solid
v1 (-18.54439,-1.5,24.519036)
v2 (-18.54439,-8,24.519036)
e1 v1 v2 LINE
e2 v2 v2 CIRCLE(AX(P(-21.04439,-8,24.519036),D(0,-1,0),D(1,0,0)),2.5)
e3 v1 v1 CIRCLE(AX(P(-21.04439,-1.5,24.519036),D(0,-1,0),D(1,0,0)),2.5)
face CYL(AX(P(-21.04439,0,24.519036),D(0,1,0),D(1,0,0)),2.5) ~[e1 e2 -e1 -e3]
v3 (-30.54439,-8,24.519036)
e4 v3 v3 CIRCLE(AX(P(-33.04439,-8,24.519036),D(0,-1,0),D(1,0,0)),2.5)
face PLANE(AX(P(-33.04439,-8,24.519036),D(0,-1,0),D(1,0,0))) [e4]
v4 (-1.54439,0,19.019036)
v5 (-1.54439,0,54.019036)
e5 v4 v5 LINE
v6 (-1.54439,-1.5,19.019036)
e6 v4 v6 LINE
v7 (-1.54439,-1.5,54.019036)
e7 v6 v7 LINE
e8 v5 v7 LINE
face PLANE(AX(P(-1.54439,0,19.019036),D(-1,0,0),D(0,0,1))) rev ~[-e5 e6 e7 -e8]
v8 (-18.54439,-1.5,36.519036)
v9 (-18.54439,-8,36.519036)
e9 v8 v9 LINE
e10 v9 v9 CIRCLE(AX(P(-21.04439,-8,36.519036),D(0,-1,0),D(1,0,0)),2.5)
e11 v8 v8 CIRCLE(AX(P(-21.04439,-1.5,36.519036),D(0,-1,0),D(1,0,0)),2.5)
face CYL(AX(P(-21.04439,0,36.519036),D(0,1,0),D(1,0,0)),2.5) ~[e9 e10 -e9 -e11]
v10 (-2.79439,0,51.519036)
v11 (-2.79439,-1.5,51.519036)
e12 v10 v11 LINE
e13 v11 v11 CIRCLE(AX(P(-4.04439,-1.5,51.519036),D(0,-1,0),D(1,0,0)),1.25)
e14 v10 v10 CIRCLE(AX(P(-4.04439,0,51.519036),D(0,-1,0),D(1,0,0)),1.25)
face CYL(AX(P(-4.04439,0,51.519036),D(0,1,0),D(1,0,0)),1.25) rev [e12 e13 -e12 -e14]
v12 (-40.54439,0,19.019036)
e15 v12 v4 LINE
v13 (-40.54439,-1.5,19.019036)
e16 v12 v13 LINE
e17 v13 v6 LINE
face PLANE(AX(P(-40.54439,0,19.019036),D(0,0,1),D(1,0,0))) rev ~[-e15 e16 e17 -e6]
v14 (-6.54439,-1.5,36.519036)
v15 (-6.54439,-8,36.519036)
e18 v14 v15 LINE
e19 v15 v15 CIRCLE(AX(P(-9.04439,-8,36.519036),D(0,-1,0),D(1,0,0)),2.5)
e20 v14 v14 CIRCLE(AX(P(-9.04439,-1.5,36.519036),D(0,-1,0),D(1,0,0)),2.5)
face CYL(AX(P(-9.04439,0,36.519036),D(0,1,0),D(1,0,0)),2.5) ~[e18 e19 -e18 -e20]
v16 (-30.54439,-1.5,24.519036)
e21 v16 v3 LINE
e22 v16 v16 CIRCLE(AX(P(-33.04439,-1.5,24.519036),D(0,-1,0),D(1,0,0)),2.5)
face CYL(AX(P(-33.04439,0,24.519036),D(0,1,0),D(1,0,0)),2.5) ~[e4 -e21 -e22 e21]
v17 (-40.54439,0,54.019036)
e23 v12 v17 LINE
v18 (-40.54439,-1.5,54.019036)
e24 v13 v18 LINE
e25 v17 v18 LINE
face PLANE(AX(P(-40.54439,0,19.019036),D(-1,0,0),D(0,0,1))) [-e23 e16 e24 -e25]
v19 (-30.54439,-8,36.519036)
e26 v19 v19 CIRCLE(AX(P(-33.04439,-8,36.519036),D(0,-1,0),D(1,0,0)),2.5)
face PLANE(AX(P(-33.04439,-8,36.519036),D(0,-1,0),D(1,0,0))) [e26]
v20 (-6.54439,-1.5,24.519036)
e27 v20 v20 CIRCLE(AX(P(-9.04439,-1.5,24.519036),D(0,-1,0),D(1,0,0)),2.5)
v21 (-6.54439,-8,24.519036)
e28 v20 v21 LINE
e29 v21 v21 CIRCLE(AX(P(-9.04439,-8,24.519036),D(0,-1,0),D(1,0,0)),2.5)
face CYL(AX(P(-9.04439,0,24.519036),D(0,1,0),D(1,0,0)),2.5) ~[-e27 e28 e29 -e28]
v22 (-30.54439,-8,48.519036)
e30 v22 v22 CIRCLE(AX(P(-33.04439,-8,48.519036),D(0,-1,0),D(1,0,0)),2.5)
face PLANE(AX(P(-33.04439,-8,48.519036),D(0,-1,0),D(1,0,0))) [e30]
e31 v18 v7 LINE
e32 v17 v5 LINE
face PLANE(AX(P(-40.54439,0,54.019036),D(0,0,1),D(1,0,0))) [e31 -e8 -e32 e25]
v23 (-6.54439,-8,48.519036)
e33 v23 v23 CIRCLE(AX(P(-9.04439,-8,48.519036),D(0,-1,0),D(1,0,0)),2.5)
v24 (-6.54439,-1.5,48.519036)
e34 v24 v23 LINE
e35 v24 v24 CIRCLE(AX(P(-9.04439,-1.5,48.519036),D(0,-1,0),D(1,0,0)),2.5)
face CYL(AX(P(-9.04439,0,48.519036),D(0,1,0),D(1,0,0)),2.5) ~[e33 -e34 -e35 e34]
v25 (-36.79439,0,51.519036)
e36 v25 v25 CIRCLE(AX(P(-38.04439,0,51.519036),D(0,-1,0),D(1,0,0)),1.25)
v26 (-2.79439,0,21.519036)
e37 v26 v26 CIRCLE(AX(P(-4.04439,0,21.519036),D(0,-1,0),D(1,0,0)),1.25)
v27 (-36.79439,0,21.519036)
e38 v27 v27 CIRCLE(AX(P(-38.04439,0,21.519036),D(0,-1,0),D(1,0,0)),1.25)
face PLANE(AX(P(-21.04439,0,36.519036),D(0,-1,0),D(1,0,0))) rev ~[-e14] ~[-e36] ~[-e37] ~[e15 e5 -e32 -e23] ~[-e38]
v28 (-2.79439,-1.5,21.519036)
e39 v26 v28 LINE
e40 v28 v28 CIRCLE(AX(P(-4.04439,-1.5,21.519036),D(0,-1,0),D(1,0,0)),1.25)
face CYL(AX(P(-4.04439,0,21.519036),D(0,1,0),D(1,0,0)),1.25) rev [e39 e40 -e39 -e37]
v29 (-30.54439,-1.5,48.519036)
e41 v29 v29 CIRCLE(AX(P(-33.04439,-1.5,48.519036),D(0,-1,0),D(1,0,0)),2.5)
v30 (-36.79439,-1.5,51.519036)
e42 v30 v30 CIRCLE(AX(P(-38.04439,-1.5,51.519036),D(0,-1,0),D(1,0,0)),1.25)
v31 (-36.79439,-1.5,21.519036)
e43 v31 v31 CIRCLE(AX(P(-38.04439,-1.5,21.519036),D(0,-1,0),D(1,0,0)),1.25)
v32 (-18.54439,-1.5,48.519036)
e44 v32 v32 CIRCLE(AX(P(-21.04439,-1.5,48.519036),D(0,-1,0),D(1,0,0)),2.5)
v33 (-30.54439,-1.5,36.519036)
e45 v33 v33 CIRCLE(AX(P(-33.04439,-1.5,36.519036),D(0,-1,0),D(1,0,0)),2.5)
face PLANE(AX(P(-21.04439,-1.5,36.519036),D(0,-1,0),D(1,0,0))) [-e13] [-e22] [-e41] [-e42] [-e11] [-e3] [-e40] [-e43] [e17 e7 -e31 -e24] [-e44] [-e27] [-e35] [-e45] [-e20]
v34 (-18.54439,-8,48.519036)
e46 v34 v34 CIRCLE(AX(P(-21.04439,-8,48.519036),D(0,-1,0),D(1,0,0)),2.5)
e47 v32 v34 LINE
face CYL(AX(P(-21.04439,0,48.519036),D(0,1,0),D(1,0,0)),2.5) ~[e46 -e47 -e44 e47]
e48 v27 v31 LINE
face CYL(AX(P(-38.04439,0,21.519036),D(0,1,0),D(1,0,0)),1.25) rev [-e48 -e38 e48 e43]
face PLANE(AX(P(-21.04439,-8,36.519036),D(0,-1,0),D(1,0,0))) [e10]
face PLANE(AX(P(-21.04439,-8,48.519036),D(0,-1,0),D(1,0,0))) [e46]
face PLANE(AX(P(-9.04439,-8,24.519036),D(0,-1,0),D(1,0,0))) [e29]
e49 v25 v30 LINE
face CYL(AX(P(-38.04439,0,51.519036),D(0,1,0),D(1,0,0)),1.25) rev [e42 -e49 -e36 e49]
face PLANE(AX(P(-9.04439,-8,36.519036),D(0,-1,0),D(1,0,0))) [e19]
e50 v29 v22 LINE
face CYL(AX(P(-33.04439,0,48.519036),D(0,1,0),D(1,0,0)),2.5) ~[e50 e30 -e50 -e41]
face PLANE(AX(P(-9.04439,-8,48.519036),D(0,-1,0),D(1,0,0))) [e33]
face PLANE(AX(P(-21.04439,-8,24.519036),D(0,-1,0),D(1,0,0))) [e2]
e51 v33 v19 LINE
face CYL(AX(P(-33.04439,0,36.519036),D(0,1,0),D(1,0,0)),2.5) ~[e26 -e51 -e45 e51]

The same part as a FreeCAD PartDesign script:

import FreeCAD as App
import Part
import Sketcher

doc = App.newDocument("Part")
body = doc.addObject("PartDesign::Body", "Body")

sketch1 = body.newObject("Sketcher::SketchObject", "Sketch")
sketch1.AttachmentSupport = (doc.getObject("XZ_Plane"), [""])
sketch1.MapMode = "FlatFace"
sketch1.addGeometry(Part.LineSegment(App.Vector(-40.54439, 54.019036, 0), App.Vector(-40.54439, 19.019036, 0)), False)
sketch1.addGeometry(Part.LineSegment(App.Vector(-40.54439, 19.019036, 0), App.Vector(-1.54439, 19.019036, 0)), False)
sketch1.addGeometry(Part.LineSegment(App.Vector(-1.54439, 19.019036, 0), App.Vector(-1.54439, 54.019036, 0)), False)
sketch1.addGeometry(Part.LineSegment(App.Vector(-1.54439, 54.019036, 0), App.Vector(-40.54439, 54.019036, 0)), False)
sketch1.addGeometry(Part.Circle(App.Vector(-38.04439, 21.519036, 0), App.Vector(0, 0, 1), 1.25), False)
sketch1.addGeometry(Part.Circle(App.Vector(-33.04439, 24.519036, 0), App.Vector(0, 0, 1), 2.5), False)
sketch1.addGeometry(Part.Circle(App.Vector(-21.04439, 24.519036, 0), App.Vector(0, 0, 1), 2.5), False)
sketch1.addGeometry(Part.Circle(App.Vector(-4.04439, 21.519036, 0), App.Vector(0, 0, 1), 1.25), False)
sketch1.addGeometry(Part.Circle(App.Vector(-9.04439, 24.519036, 0), App.Vector(0, 0, 1), 2.5), False)
sketch1.addGeometry(Part.Circle(App.Vector(-33.04439, 36.519036, 0), App.Vector(0, 0, 1), 2.5), False)
sketch1.addGeometry(Part.Circle(App.Vector(-33.04439, 48.519036, 0), App.Vector(0, 0, 1), 2.5), False)
sketch1.addGeometry(Part.Circle(App.Vector(-38.04439, 51.519036, 0), App.Vector(0, 0, 1), 1.25), False)
sketch1.addGeometry(Part.Circle(App.Vector(-21.04439, 36.519036, 0), App.Vector(0, 0, 1), 2.5), False)
sketch1.addGeometry(Part.Circle(App.Vector(-9.04439, 36.519036, 0), App.Vector(0, 0, 1), 2.5), False)
sketch1.addGeometry(Part.Circle(App.Vector(-21.04439, 48.519036, 0), App.Vector(0, 0, 1), 2.5), False)
sketch1.addGeometry(Part.Circle(App.Vector(-9.04439, 48.519036, 0), App.Vector(0, 0, 1), 2.5), False)
sketch1.addGeometry(Part.Circle(App.Vector(-4.04439, 51.519036, 0), App.Vector(0, 0, 1), 1.25), False)
sketch1.addConstraint(Sketcher.Constraint("Coincident", 0, 2, 1, 1))
sketch1.addConstraint(Sketcher.Constraint("Coincident", 1, 2, 2, 1))
sketch1.addConstraint(Sketcher.Constraint("Coincident", 2, 2, 3, 1))
sketch1.addConstraint(Sketcher.Constraint("Coincident", 3, 2, 0, 1))
sketch1.addConstraint(Sketcher.Constraint("Vertical", 0))
sketch1.addConstraint(Sketcher.Constraint("Horizontal", 1))
sketch1.addConstraint(Sketcher.Constraint("Vertical", 2))
sketch1.addConstraint(Sketcher.Constraint("Horizontal", 3))
sketch1.addConstraint(Sketcher.Constraint("Equal", 5, 6))
sketch1.addConstraint(Sketcher.Constraint("Equal", 4, 7))
sketch1.addConstraint(Sketcher.Constraint("Equal", 6, 8))
sketch1.addConstraint(Sketcher.Constraint("Equal", 8, 9))
sketch1.addConstraint(Sketcher.Constraint("Equal", 9, 10))
sketch1.addConstraint(Sketcher.Constraint("Equal", 7, 11))
sketch1.addConstraint(Sketcher.Constraint("Equal", 10, 12))
sketch1.addConstraint(Sketcher.Constraint("Equal", 12, 13))
sketch1.addConstraint(Sketcher.Constraint("Equal", 13, 14))
sketch1.addConstraint(Sketcher.Constraint("Equal", 14, 15))
sketch1.addConstraint(Sketcher.Constraint("Equal", 11, 16))
sketch1.addConstraint(Sketcher.Constraint("Horizontal", 5, 3, 6, 3))
sketch1.addConstraint(Sketcher.Constraint("Horizontal", 4, 3, 7, 3))
sketch1.addConstraint(Sketcher.Constraint("Horizontal", 6, 3, 8, 3))
sketch1.addConstraint(Sketcher.Constraint("Horizontal", 9, 3, 12, 3))
sketch1.addConstraint(Sketcher.Constraint("Horizontal", 12, 3, 13, 3))
sketch1.addConstraint(Sketcher.Constraint("Horizontal", 10, 3, 14, 3))
sketch1.addConstraint(Sketcher.Constraint("Horizontal", 14, 3, 15, 3))
sketch1.addConstraint(Sketcher.Constraint("Horizontal", 11, 3, 16, 3))
sketch1.addConstraint(Sketcher.Constraint("Vertical", 5, 3, 9, 3))
sketch1.addConstraint(Sketcher.Constraint("Vertical", 9, 3, 10, 3))
sketch1.addConstraint(Sketcher.Constraint("Vertical", 4, 3, 11, 3))
sketch1.addConstraint(Sketcher.Constraint("Vertical", 6, 3, 12, 3))
sketch1.addConstraint(Sketcher.Constraint("Vertical", 8, 3, 13, 3))
sketch1.addConstraint(Sketcher.Constraint("Vertical", 12, 3, 14, 3))
sketch1.addConstraint(Sketcher.Constraint("Vertical", 13, 3, 15, 3))
sketch1.addConstraint(Sketcher.Constraint("Vertical", 7, 3, 16, 3))
sketch1.addConstraint(Sketcher.Constraint("Diameter", 5, 5.0))
sketch1.addConstraint(Sketcher.Constraint("Diameter", 4, 2.5))
sketch1.addConstraint(Sketcher.Constraint("DistanceX", 1, 1, 1, 2, 39.0))
sketch1.addConstraint(Sketcher.Constraint("DistanceY", 0, 2, 0, 1, 35.0))
sketch1.addConstraint(Sketcher.Constraint("DistanceX", 4, 3, 5, 3, 5.0))
sketch1.addConstraint(Sketcher.Constraint("DistanceY", 4, 3, 5, 3, 3.0))
sketch1.addConstraint(Sketcher.Constraint("DistanceX", 5, 3, 6, 3, 12.0))
sketch1.addConstraint(Sketcher.Constraint("DistanceX", 6, 3, 7, 3, 17.0))
sketch1.addConstraint(Sketcher.Constraint("DistanceX", 8, 3, 7, 3, 5.0))
sketch1.addConstraint(Sketcher.Constraint("DistanceY", 5, 3, 9, 3, 12.0))
sketch1.addConstraint(Sketcher.Constraint("DistanceY", 9, 3, 10, 3, 12.0))
sketch1.addConstraint(Sketcher.Constraint("DistanceY", 10, 3, 11, 3, 3.0))
sketch1.addConstraint(Sketcher.Constraint("DistanceX", 0, 2, 4, 3, 2.5))
sketch1.addConstraint(Sketcher.Constraint("DistanceY", 0, 2, 4, 3, 2.5))
sketch1.addConstraint(Sketcher.Constraint("DistanceX", 4, 3, -1, 1, 38.04439))
sketch1.addConstraint(Sketcher.Constraint("DistanceY", -1, 1, 4, 3, 21.519036))
pad1 = body.newObject("PartDesign::Pad", "Pad")
pad1.Profile = sketch1
pad1.Length = 1.5

sketch2 = body.newObject("Sketcher::SketchObject", "Sketch001")
sketch2.AttachmentSupport = (doc.getObject("XZ_Plane"), [""])
sketch2.MapMode = "FlatFace"
sketch2.addGeometry(Part.Circle(App.Vector(-33.04439, 48.519036, 0), App.Vector(0, 0, 1), 2.5), False)
sketch2.addGeometry(Part.Circle(App.Vector(-21.04439, 48.519036, 0), App.Vector(0, 0, 1), 2.5), False)
sketch2.addGeometry(Part.Circle(App.Vector(-9.04439, 48.519036, 0), App.Vector(0, 0, 1), 2.5), False)
sketch2.addGeometry(Part.Circle(App.Vector(-33.04439, 36.519036, 0), App.Vector(0, 0, 1), 2.5), False)
sketch2.addGeometry(Part.Circle(App.Vector(-21.04439, 36.519036, 0), App.Vector(0, 0, 1), 2.5), False)
sketch2.addGeometry(Part.Circle(App.Vector(-9.04439, 36.519036, 0), App.Vector(0, 0, 1), 2.5), False)
sketch2.addGeometry(Part.Circle(App.Vector(-33.04439, 24.519036, 0), App.Vector(0, 0, 1), 2.5), False)
sketch2.addGeometry(Part.Circle(App.Vector(-21.04439, 24.519036, 0), App.Vector(0, 0, 1), 2.5), False)
sketch2.addGeometry(Part.Circle(App.Vector(-9.04439, 24.519036, 0), App.Vector(0, 0, 1), 2.5), False)
sketch2.addConstraint(Sketcher.Constraint("Equal", 0, 1))
sketch2.addConstraint(Sketcher.Constraint("Equal", 1, 2))
sketch2.addConstraint(Sketcher.Constraint("Equal", 2, 3))
sketch2.addConstraint(Sketcher.Constraint("Equal", 3, 4))
sketch2.addConstraint(Sketcher.Constraint("Equal", 4, 5))
sketch2.addConstraint(Sketcher.Constraint("Equal", 5, 6))
sketch2.addConstraint(Sketcher.Constraint("Equal", 6, 7))
sketch2.addConstraint(Sketcher.Constraint("Equal", 7, 8))
sketch2.addConstraint(Sketcher.Constraint("Horizontal", 0, 3, 1, 3))
sketch2.addConstraint(Sketcher.Constraint("Horizontal", 1, 3, 2, 3))
sketch2.addConstraint(Sketcher.Constraint("Horizontal", 3, 3, 4, 3))
sketch2.addConstraint(Sketcher.Constraint("Horizontal", 4, 3, 5, 3))
sketch2.addConstraint(Sketcher.Constraint("Horizontal", 6, 3, 7, 3))
sketch2.addConstraint(Sketcher.Constraint("Horizontal", 7, 3, 8, 3))
sketch2.addConstraint(Sketcher.Constraint("Vertical", 0, 3, 3, 3))
sketch2.addConstraint(Sketcher.Constraint("Vertical", 1, 3, 4, 3))
sketch2.addConstraint(Sketcher.Constraint("Vertical", 2, 3, 5, 3))
sketch2.addConstraint(Sketcher.Constraint("Vertical", 3, 3, 6, 3))
sketch2.addConstraint(Sketcher.Constraint("Vertical", 4, 3, 7, 3))
sketch2.addConstraint(Sketcher.Constraint("Vertical", 5, 3, 8, 3))
sketch2.addConstraint(Sketcher.Constraint("Diameter", 0, 5.0))
sketch2.addConstraint(Sketcher.Constraint("DistanceX", 0, 3, 1, 3, 12.0))
sketch2.addConstraint(Sketcher.Constraint("DistanceX", 1, 3, 2, 3, 12.0))
sketch2.addConstraint(Sketcher.Constraint("DistanceY", 3, 3, 0, 3, 12.0))
sketch2.addConstraint(Sketcher.Constraint("DistanceY", 6, 3, 3, 3, 12.0))
sketch2.addConstraint(Sketcher.Constraint("DistanceX", 0, 3, -1, 1, 33.04439))
sketch2.addConstraint(Sketcher.Constraint("DistanceY", -1, 1, 0, 3, 48.519036))
pad2 = body.newObject("PartDesign::Pad", "Pad001")
pad2.Profile = sketch2
pad2.Length = 8

doc.recompute()
